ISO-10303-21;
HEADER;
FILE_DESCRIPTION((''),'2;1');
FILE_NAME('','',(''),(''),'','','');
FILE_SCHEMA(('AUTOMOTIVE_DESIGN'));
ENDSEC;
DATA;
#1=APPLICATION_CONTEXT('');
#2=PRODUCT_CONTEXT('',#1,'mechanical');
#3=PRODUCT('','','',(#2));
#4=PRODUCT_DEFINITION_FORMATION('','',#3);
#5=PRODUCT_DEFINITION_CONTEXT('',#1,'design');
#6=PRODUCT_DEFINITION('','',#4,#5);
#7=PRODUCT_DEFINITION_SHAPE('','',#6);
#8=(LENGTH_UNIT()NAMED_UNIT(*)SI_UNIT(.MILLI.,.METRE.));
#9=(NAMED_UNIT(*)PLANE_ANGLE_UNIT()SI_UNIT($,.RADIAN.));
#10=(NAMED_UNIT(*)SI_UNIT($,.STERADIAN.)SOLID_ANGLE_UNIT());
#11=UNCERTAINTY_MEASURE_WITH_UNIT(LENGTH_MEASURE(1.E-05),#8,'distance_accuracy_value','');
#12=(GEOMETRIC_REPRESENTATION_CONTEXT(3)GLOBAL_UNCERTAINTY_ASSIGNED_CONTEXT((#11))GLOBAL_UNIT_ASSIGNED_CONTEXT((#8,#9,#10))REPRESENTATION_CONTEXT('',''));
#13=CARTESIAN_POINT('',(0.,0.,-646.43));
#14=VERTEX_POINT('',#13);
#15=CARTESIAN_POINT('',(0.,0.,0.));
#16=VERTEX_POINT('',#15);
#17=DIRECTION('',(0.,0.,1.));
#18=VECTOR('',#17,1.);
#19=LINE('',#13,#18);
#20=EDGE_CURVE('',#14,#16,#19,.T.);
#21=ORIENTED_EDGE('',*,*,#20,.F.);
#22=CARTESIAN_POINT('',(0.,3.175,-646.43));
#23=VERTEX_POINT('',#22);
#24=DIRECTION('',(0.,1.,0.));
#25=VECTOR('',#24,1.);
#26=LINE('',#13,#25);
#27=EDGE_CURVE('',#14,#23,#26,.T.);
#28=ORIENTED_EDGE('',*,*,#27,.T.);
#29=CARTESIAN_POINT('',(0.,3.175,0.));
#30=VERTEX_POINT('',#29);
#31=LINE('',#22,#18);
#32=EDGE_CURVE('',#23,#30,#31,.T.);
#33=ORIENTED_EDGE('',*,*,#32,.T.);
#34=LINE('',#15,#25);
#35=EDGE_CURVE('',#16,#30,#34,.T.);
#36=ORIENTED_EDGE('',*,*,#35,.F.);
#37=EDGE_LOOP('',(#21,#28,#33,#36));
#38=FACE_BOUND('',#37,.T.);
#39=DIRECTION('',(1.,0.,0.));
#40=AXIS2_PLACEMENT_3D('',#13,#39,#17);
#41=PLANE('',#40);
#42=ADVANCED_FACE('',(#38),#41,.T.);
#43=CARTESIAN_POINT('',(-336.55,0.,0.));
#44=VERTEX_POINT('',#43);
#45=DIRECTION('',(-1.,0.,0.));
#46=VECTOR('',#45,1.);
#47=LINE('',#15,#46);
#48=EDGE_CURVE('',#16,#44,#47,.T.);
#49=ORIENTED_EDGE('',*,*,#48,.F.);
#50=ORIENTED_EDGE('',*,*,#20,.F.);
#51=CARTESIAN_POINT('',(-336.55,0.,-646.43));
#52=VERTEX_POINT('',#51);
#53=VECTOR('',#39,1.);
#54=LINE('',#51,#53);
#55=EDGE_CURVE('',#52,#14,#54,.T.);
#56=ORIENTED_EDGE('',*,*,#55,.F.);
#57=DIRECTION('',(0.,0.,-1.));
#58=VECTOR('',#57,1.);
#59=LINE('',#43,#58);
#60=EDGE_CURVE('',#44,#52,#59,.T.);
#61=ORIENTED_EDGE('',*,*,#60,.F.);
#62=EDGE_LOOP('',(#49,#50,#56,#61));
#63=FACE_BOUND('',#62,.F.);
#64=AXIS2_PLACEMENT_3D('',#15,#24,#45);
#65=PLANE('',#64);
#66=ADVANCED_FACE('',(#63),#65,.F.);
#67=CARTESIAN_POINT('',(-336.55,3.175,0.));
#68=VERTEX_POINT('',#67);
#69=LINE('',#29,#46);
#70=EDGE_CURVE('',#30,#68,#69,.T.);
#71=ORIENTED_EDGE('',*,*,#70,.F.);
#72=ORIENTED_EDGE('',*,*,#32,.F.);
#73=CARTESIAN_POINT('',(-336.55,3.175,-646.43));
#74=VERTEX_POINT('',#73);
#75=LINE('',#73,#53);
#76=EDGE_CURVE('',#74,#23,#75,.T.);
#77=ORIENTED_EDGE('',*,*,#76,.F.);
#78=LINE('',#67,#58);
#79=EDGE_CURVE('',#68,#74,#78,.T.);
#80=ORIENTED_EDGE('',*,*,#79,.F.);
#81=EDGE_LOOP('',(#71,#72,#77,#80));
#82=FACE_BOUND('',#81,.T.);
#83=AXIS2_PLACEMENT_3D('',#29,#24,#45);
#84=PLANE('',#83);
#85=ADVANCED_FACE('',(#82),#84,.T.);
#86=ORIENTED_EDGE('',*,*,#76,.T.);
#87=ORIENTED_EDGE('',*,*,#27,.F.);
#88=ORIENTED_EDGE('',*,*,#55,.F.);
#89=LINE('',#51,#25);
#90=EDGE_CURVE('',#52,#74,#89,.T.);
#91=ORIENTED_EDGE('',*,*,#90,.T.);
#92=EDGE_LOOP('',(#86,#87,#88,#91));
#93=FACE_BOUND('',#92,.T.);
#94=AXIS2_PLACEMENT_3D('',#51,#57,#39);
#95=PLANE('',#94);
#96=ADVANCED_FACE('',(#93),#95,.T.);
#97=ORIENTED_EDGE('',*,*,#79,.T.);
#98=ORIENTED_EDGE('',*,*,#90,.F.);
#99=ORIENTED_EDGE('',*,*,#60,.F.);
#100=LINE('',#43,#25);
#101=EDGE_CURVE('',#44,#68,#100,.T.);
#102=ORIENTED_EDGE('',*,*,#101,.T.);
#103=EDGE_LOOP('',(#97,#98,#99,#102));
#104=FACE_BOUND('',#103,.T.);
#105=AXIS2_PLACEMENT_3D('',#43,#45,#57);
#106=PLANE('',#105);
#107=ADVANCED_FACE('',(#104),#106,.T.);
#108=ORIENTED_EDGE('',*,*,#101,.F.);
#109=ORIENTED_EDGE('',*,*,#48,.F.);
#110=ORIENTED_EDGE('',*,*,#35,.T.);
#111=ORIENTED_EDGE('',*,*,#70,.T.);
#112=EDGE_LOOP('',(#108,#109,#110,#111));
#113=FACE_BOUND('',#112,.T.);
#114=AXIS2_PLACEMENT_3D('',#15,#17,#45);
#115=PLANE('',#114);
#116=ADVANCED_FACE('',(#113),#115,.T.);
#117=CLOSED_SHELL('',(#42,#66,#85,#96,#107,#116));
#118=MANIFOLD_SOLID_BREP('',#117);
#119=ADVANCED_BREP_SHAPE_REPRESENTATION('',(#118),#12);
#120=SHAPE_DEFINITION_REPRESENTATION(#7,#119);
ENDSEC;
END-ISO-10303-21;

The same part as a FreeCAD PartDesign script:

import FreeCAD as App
import Part
import Sketcher
Q = App.Units.Quantity

doc = App.newDocument("Part")
body = doc.addObject("PartDesign::Body", "Body")

sketch1 = body.newObject("Sketcher::SketchObject", "Sketch")
sketch1.AttachmentSupport = (doc.getObject("XZ_Plane"), [""])
sketch1.MapMode = "FlatFace"
sketch1.addGeometry([
    Part.LineSegment(App.Vector(-337, 0, 0), App.Vector(0, 0, 0)),
    Part.LineSegment(App.Vector(0, 0, 0), App.Vector(0, -646, 0)),
    Part.LineSegment(App.Vector(0, -646, 0), App.Vector(-337, -646, 0)),
    Part.LineSegment(App.Vector(-337, -646, 0), App.Vector(-337, 0, 0)),
], False)
sketch1.addConstraint([
    Sketcher.Constraint("Coincident", 0, 2, 1, 1),
    Sketcher.Constraint("Coincident", 1, 2, 2, 1),
    Sketcher.Constraint("Coincident", 2, 2, 3, 1),
    Sketcher.Constraint("Coincident", 3, 2, 0, 1),
    Sketcher.Constraint("Horizontal", 0),
    Sketcher.Constraint("Vertical", 1),
    Sketcher.Constraint("Horizontal", 2),
    Sketcher.Constraint("Vertical", 3),
    Sketcher.Constraint("Coincident", 0, 2, -1, 1),
    Sketcher.Constraint("DistanceX", 0, 1, 0, 2, Q("13.25 in")),
    Sketcher.Constraint("DistanceY", 1, 2, 1, 1, Q("25.45 in")),
])
pad1 = body.newObject("PartDesign::Pad", "Pad")
pad1.Profile = sketch1
pad1.Length = Q("0.125 in")
pad1.Reversed = True

doc.recompute()
